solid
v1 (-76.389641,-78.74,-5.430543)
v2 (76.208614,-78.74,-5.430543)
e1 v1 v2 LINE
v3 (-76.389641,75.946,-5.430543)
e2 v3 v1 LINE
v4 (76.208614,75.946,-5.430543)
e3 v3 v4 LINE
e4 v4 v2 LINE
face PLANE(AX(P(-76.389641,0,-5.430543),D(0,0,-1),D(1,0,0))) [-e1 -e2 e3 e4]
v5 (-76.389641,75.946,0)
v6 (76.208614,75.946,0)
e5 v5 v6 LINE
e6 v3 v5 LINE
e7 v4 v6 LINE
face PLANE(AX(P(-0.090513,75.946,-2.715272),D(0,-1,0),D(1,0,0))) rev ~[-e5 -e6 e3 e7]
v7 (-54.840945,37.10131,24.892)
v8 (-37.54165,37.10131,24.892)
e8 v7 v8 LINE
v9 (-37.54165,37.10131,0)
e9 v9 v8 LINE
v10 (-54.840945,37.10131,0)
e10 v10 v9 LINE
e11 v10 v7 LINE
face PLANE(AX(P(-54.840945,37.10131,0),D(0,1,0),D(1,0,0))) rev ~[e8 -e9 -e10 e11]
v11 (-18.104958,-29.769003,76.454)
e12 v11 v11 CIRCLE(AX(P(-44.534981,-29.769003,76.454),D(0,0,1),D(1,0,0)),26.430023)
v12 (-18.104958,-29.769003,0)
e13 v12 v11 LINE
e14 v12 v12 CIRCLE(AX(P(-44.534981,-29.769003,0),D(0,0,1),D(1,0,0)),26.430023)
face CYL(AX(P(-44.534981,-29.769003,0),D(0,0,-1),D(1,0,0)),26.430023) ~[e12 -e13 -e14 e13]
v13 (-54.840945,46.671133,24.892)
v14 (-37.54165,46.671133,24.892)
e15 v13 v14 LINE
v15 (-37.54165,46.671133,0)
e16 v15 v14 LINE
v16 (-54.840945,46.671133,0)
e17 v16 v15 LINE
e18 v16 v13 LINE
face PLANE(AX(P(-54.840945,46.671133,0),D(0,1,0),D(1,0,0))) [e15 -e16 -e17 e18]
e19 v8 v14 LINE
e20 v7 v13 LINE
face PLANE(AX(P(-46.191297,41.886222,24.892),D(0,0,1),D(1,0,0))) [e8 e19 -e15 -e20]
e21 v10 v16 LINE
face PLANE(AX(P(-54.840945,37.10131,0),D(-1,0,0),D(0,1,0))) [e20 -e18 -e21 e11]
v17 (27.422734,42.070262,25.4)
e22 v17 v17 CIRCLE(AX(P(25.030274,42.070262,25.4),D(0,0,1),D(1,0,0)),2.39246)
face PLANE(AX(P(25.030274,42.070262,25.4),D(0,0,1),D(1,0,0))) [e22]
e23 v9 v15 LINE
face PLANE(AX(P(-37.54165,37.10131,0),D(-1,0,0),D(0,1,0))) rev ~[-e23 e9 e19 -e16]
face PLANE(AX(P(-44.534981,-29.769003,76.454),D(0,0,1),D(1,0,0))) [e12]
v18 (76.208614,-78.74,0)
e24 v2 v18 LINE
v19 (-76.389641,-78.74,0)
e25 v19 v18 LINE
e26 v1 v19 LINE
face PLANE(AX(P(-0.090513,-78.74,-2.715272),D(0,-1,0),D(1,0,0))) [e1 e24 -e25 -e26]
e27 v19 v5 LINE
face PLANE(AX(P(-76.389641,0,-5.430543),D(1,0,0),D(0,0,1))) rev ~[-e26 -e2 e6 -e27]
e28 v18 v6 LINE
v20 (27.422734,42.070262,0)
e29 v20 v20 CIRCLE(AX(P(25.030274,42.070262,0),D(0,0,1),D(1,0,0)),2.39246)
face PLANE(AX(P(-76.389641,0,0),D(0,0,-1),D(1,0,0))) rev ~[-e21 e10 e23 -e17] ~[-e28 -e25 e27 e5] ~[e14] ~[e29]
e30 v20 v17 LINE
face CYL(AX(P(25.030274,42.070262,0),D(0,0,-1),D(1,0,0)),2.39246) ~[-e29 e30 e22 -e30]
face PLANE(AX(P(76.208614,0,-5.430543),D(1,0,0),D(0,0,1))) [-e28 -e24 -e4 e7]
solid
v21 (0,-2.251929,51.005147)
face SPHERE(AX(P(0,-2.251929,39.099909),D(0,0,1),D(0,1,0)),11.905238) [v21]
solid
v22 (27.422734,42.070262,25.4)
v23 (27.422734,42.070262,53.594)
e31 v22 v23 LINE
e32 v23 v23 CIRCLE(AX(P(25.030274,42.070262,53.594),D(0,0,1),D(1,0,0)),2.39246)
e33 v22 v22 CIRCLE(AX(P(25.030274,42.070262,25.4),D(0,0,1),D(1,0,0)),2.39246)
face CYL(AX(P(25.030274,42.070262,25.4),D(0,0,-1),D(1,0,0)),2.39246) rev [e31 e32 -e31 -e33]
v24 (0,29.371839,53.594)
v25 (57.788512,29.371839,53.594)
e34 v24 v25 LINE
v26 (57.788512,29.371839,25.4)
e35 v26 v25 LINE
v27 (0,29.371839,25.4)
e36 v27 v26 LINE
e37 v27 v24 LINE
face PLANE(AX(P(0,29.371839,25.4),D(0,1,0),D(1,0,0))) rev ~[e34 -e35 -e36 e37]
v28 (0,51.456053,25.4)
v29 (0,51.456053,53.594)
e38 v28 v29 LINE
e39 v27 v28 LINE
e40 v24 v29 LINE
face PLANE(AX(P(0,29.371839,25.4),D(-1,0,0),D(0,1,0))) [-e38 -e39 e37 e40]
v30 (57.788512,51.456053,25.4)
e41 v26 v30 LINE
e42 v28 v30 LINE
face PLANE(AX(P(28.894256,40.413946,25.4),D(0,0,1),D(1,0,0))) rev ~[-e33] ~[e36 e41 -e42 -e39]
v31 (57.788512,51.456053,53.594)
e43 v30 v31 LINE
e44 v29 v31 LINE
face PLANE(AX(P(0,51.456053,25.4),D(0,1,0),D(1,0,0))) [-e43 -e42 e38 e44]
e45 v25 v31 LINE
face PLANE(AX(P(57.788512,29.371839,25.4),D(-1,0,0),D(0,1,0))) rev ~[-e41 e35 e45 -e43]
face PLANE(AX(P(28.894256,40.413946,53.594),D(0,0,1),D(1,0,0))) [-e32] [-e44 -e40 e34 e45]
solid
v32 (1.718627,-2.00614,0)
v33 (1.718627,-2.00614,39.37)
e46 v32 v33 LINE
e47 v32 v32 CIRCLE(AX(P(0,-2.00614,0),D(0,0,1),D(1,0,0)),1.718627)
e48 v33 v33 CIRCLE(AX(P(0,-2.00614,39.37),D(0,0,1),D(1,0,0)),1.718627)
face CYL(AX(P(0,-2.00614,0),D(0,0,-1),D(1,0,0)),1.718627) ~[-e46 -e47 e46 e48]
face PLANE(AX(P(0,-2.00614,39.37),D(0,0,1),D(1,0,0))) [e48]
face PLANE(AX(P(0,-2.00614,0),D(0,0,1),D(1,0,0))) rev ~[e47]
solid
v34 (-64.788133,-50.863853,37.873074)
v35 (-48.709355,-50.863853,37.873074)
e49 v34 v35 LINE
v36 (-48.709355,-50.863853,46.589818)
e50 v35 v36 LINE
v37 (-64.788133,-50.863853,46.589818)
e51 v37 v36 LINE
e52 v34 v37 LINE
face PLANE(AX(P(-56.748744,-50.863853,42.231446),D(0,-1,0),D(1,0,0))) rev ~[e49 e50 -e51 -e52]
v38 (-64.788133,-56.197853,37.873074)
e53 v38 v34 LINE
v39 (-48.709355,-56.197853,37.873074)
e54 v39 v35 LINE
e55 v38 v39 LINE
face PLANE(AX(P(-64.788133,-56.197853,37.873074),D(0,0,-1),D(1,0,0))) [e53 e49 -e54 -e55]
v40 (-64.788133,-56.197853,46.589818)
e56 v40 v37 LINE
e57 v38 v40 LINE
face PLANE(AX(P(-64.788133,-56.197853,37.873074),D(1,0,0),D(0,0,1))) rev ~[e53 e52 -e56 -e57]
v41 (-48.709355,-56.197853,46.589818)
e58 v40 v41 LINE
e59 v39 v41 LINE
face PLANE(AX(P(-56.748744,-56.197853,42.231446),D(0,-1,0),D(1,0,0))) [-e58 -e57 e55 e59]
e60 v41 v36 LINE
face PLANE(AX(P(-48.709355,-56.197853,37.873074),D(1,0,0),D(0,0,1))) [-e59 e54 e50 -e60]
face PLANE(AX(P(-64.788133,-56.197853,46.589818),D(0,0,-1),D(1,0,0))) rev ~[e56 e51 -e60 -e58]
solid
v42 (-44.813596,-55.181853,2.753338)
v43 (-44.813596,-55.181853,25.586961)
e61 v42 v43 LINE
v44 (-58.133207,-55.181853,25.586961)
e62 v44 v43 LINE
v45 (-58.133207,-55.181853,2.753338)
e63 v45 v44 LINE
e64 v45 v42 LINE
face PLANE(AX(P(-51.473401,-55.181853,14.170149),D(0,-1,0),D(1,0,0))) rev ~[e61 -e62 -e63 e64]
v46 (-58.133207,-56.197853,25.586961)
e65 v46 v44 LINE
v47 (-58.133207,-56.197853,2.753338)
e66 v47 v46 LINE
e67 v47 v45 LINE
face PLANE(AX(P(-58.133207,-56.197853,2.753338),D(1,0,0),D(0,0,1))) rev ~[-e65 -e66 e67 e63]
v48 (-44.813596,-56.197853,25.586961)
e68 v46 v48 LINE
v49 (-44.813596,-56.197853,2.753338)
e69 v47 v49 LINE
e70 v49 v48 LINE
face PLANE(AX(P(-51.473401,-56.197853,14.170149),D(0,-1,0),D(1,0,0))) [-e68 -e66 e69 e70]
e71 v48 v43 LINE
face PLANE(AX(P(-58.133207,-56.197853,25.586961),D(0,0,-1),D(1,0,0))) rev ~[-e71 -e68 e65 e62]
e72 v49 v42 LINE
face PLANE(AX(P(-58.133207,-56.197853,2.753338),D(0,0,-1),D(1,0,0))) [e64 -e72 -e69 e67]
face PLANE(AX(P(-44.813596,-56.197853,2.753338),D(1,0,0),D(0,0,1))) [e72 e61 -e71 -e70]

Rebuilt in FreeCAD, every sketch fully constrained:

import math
import FreeCAD as App
import Part
import Sketcher
from FreeCAD import Vector


def add_polygon(sketch, points):
    """Adds a closed chain of lines whose ends are joined by coincident constraints."""
    first, n = sketch.GeometryCount, len(points)
    for a, b in zip(points, points[1:] + points[:1]):
        sketch.addGeometry(Part.LineSegment(App.Vector(*a, 0), App.Vector(*b, 0)), False)
    for i in range(n):
        sketch.addConstraint(Sketcher.Constraint("Coincident", first + i, 2, first + (i + 1) % n, 1))

doc = App.newDocument("Part")
params = doc.addObject("Spreadsheet::Sheet", "Params")
for row, (alias, value) in enumerate([
    ("pad1_length", "3.1 in"),
    ("pad1_length2", "2.99 in"),
    ("pad2_length", "1 in"),
    ("pad3_length", "0.98 in"),
    ("pad4_length", "3.01 in"),
    ("pad5_length", "1.55 in"),
    ("revolution_angle", "360 deg"),
    ("pad6_length", "1.11 in"),
    ("pad7_length", "0.04 in"),
    ("pad8_length", "0.21 in"),
], start=1):
    params.set(f"A{row}", alias)
    params.set(f"B{row}", "=" + value)
    params.setAlias(f"B{row}", alias)

body = doc.addObject("PartDesign::Body", "Body")

sketch1 = body.newObject("Sketcher::SketchObject", "Sketch")
sketch1.AttachmentSupport = (doc.getObject("XZ_Plane"), [""])
sketch1.MapMode = "FlatFace"
add_polygon(sketch1, [(-76, 0), (-76, -5), (76, -5), (76, 0)])
sketch1.addConstraint([
    Sketcher.Constraint("Vertical", 0),
    Sketcher.Constraint("Horizontal", 1),
    Sketcher.Constraint("Vertical", 2),
    Sketcher.Constraint("Horizontal", 3),
    Sketcher.Constraint("PointOnObject", 2, 2, -1),
    Sketcher.Constraint("DistanceX", 1, 1, 1, 2, 152.598254),
    Sketcher.Constraint("DistanceY", 0, 2, 0, 1, 5.430543),
    Sketcher.Constraint("DistanceX", 0, 2, -1, 1, 76.389641),
])
pad1 = body.newObject("PartDesign::Pad", "Pad")
pad1.Profile = sketch1
pad1.Type = "TwoLengths"
pad1.setExpression("Length", "Params.pad1_length")
pad1.setExpression("Length2", "Params.pad1_length2")

sketch2 = body.newObject("Sketcher::SketchObject", "Sketch001")
sketch2.AttachmentSupport = (doc.getObject("XY_Plane"), [""])
sketch2.MapMode = "FlatFace"
sketch2.addGeometry(Part.Circle(Vector(25, 42.1, 0), Vector(0, 0, 1), 2.4), False)
sketch2.addConstraint([
    Sketcher.Constraint("Diameter", 0, 4.784919),
    Sketcher.Constraint("DistanceX", -1, 1, 0, 3, 25.030274),
    Sketcher.Constraint("DistanceY", -1, 1, 0, 3, 42.070262),
])
pad2 = body.newObject("PartDesign::Pad", "Pad001")
pad2.Profile = sketch2
pad2.setExpression("Length", "Params.pad2_length")

sketch3 = body.newObject("Sketcher::SketchObject", "Sketch002")
sketch3.AttachmentSupport = (doc.getObject("XY_Plane"), [""])
sketch3.MapMode = "FlatFace"
add_polygon(sketch3, [(-55, 47), (-55, 37), (-38, 37), (-38, 47)])
sketch3.addConstraint([
    Sketcher.Constraint("Vertical", 0),
    Sketcher.Constraint("Horizontal", 1),
    Sketcher.Constraint("Vertical", 2),
    Sketcher.Constraint("Horizontal", 3),
    Sketcher.Constraint("DistanceX", 1, 1, 1, 2, 17.299294),
    Sketcher.Constraint("DistanceY", 0, 2, 0, 1, 9.569824),
    Sketcher.Constraint("DistanceY", -1, 1, 0, 2, 37.10131),
    Sketcher.Constraint("DistanceX", 1, 2, -1, 1, 37.54165),
])
pad3 = body.newObject("PartDesign::Pad", "Pad002")
pad3.Profile = sketch3
pad3.setExpression("Length", "Params.pad3_length")

sketch4 = body.newObject("Sketcher::SketchObject", "Sketch003")
sketch4.AttachmentSupport = (doc.getObject("XY_Plane"), [""])
sketch4.MapMode = "FlatFace"
sketch4.addGeometry(Part.Circle(Vector(-45, -30, 0), Vector(0, 0, 1), 26), False)
sketch4.addConstraint([
    Sketcher.Constraint("Diameter", 0, 52.860047),
    Sketcher.Constraint("DistanceX", 0, 3, -1, 1, 44.534981),
    Sketcher.Constraint("DistanceY", 0, 3, -1, 1, 29.769003),
])
pad4 = body.newObject("PartDesign::Pad", "Pad003")
pad4.Profile = sketch4
pad4.setExpression("Length", "Params.pad4_length")
body2 = doc.addObject("PartDesign::Body", "Body001")

sketch5 = body2.newObject("Sketcher::SketchObject", "Sketch004")
sketch5.AttachmentSupport = (doc.getObject("XY_Plane001"), [""])
sketch5.MapMode = "FlatFace"
sketch5.addGeometry(Part.Circle(Vector(0, -2, 0), Vector(0, 0, 1), 1.7), False)
sketch5.addConstraint([
    Sketcher.Constraint("PointOnObject", 0, 3, -2),
    Sketcher.Constraint("Diameter", 0, 3.437255),
    Sketcher.Constraint("DistanceY", 0, 3, -1, 1, 2.00614),
])
pad5 = body2.newObject("PartDesign::Pad", "Pad004")
pad5.Profile = sketch5
pad5.setExpression("Length", "Params.pad5_length")
body3 = doc.addObject("PartDesign::Body", "Body002")

sketch6 = body3.newObject("Sketcher::SketchObject", "Sketch005")
sketch6.AttachmentSupport = (doc.getObject("YZ_Plane002"), [""])
sketch6.MapMode = "FlatFace"
sketch6.addGeometry([
    Part.ArcOfCircle(Part.Circle(Vector(-2, 39, 0), Vector(0, 0, 1), 12), math.radians(-90), math.radians(90)),
    Part.LineSegment(Vector(-2, 51, 0), Vector(-2, 27, 0)),
], False)
sketch6.addGeometry(Part.LineSegment(Vector(-2, 27, 0), Vector(-2, 51, 0)), True)
sketch6.addConstraint([
    Sketcher.Constraint("Coincident", 0, 1, 1, 2),
    Sketcher.Constraint("Coincident", 1, 1, 0, 2),
    Sketcher.Constraint("Vertical", 1),
    Sketcher.Constraint("Vertical", 2),
    Sketcher.Constraint("Coincident", 2, 1, 0, 1),
    Sketcher.Constraint("Equal", 1, 2),
    Sketcher.Constraint("Radius", 0, 11.905238),
    Sketcher.Constraint("DistanceX", 0, 3, -1, 1, 2.251929),
    Sketcher.Constraint("DistanceY", -1, 1, 0, 3, 39.099909),
    Sketcher.Constraint("DistanceX", 0, 1, -1, 1, 2.251929),
])
revolution = body3.newObject("PartDesign::Revolution", "Revolution")
revolution.Profile = sketch6
revolution.ReferenceAxis = (sketch6, ["Axis0"])
revolution.setExpression("Angle", "Params.revolution_angle")
body4 = doc.addObject("PartDesign::Body", "Body003")

sketch7 = body4.newObject("Sketcher::SketchObject", "Sketch006")
sketch7.AttachmentSupport = (doc.getObject("XY_Plane003"), [""])
sketch7.MapMode = "FlatFace"
sketch7.AttachmentOffset = App.Placement(Vector(0, 0, 1 * 25.4), App.Rotation())
add_polygon(sketch7, [(0, 51.5), (0, 29.4), (57.8, 29.4), (57.8, 51.5)])
sketch7.addGeometry(Part.Circle(Vector(25, 42.1, 0), Vector(0, 0, 1), 2.4), False)
sketch7.addConstraint([
    Sketcher.Constraint("Vertical", 0),
    Sketcher.Constraint("Horizontal", 1),
    Sketcher.Constraint("Vertical", 2),
    Sketcher.Constraint("Horizontal", 3),
    Sketcher.Constraint("PointOnObject", 0, 2, -2),
    Sketcher.Constraint("Diameter", 4, 4.784919),
    Sketcher.Constraint("DistanceX", 1, 1, 1, 2, 57.788512),
    Sketcher.Constraint("DistanceY", 0, 2, 0, 1, 22.084214),
    Sketcher.Constraint("DistanceY", -1, 1, 0, 2, 29.371839),
    Sketcher.Constraint("DistanceY", 4, 3, 2, 2, 9.385791),
    Sketcher.Constraint("DistanceX", -1, 1, 4, 3, 25.030274),
])
pad6 = body4.newObject("PartDesign::Pad", "Pad005")
pad6.Profile = sketch7
pad6.setExpression("Length", "Params.pad6_length")
body5 = doc.addObject("PartDesign::Body", "Body004")

sketch8 = body5.newObject("Sketcher::SketchObject", "Sketch007")
sketch8.AttachmentSupport = (doc.getObject("XZ_Plane004"), [""])
sketch8.MapMode = "FlatFace"
sketch8.AttachmentOffset = App.Placement(Vector(0, 0, 56.197853), App.Rotation())
add_polygon(sketch8, [(-58, 26), (-58, 3), (-45, 3), (-45, 26)])
sketch8.addConstraint([
    Sketcher.Constraint("Vertical", 0),
    Sketcher.Constraint("Horizontal", 1),
    Sketcher.Constraint("Vertical", 2),
    Sketcher.Constraint("Horizontal", 3),
    Sketcher.Constraint("DistanceX", 1, 1, 1, 2, 13.319612),
    Sketcher.Constraint("DistanceY", 0, 2, 0, 1, 22.833623),
    Sketcher.Constraint("DistanceY", -1, 1, 2, 2, 25.586961),
    Sketcher.Constraint("DistanceX", 0, 2, -1, 1, 58.133207),
])
pad7 = body5.newObject("PartDesign::Pad", "Pad006")
pad7.Profile = sketch8
pad7.setExpression("Length", "Params.pad7_length")
pad7.Reversed = True
body6 = doc.addObject("PartDesign::Body", "Body005")

sketch9 = body6.newObject("Sketcher::SketchObject", "Sketch008")
sketch9.AttachmentSupport = (doc.getObject("XZ_Plane005"), [""])
sketch9.MapMode = "FlatFace"
sketch9.AttachmentOffset = App.Placement(Vector(0, 0, 56.197853), App.Rotation())
add_polygon(sketch9, [(-65, 47), (-65, 38), (-49, 38), (-49, 47)])
sketch9.addConstraint([
    Sketcher.Constraint("Vertical", 0),
    Sketcher.Constraint("Horizontal", 1),
    Sketcher.Constraint("Vertical", 2),
    Sketcher.Constraint("Horizontal", 3),
    Sketcher.Constraint("DistanceX", 1, 1, 1, 2, 16.078778),
    Sketcher.Constraint("DistanceY", 0, 2, 0, 1, 8.716743),
    Sketcher.Constraint("DistanceX", 0, 2, -1, 1, 64.788133),
    Sketcher.Constraint("DistanceY", -1, 1, 0, 2, 37.873074),
])
pad8 = body6.newObject("PartDesign::Pad", "Pad007")
pad8.Profile = sketch9
pad8.setExpression("Length", "Params.pad8_length")
pad8.Reversed = True

doc.recompute()
